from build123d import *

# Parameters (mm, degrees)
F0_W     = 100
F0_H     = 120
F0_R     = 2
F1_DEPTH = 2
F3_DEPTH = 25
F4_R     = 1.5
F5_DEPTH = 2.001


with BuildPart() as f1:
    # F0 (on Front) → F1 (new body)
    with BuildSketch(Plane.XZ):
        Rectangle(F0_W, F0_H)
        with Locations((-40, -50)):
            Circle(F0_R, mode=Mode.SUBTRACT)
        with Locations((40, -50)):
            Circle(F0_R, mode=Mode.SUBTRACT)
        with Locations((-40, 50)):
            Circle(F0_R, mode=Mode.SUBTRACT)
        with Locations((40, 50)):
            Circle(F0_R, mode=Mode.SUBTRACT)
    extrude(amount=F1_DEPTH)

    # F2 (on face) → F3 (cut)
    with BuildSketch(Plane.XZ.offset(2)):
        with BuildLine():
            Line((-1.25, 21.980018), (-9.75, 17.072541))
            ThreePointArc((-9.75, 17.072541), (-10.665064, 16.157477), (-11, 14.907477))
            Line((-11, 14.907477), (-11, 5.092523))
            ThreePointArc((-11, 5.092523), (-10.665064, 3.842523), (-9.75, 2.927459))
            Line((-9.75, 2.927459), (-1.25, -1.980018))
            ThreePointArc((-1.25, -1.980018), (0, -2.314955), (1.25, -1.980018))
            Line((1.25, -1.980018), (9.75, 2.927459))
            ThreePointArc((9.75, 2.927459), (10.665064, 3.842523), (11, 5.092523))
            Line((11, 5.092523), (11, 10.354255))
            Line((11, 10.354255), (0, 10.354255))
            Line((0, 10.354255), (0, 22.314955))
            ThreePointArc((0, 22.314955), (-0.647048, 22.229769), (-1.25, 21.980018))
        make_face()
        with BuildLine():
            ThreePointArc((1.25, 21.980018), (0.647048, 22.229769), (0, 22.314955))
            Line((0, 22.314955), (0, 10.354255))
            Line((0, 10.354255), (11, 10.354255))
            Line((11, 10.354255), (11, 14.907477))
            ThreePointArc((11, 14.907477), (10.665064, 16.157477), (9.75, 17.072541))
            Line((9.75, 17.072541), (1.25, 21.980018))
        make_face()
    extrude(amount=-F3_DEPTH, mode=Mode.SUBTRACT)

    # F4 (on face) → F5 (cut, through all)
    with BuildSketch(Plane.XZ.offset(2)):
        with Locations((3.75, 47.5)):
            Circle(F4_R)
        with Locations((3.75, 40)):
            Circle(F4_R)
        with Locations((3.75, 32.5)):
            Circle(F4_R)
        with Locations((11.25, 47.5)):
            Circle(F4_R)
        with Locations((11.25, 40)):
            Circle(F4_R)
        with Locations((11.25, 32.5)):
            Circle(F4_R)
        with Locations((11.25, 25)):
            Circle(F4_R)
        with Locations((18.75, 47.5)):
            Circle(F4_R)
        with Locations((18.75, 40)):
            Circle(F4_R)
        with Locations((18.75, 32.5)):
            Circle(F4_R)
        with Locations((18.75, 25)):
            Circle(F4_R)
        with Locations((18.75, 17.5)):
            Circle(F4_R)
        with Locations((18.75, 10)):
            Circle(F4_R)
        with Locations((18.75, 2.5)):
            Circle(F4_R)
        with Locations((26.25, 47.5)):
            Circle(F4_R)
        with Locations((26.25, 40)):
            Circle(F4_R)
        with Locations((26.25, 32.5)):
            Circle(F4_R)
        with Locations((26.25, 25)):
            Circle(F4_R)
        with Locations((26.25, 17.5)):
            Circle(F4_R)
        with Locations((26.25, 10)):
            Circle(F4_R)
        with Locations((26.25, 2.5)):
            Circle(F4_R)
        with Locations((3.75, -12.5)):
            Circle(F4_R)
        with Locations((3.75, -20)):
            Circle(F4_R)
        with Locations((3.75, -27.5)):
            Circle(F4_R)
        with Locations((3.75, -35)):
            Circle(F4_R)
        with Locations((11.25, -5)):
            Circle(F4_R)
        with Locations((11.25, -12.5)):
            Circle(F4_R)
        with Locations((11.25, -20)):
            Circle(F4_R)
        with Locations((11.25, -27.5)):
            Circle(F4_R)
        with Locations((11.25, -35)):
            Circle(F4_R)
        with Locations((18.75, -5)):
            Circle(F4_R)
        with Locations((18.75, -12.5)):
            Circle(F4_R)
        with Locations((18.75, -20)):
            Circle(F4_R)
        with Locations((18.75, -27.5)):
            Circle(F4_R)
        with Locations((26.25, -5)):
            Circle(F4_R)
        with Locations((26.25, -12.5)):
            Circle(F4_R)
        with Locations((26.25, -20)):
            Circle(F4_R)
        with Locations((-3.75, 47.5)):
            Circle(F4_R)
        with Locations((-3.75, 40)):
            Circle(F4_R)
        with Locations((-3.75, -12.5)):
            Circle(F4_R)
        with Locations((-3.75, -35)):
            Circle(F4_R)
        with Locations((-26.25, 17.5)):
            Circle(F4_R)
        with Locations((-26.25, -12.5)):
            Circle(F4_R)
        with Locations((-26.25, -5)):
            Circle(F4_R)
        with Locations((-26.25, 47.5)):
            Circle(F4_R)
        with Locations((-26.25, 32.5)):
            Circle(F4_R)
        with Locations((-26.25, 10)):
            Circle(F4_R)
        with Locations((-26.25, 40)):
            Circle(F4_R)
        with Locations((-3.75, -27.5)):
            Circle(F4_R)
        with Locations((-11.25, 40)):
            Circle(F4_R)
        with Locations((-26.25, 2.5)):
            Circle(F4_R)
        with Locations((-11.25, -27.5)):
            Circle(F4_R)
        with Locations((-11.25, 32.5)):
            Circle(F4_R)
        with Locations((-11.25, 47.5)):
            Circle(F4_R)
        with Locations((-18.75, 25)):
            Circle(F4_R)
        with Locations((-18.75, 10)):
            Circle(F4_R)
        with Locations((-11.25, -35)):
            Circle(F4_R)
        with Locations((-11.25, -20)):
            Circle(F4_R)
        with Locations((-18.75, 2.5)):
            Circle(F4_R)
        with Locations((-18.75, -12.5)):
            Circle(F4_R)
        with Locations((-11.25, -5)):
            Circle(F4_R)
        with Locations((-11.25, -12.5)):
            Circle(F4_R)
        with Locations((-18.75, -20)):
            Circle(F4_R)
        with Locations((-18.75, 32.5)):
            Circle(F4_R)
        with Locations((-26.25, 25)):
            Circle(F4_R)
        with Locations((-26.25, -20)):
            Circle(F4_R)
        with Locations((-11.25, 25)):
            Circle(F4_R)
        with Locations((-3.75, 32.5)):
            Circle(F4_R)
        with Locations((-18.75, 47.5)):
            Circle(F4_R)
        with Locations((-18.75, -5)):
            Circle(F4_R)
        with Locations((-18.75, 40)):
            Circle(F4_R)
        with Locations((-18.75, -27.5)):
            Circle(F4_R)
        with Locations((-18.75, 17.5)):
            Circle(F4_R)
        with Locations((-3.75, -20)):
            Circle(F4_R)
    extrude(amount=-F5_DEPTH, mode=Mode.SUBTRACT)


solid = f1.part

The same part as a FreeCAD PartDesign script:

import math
import FreeCAD as App
import Part
import Sketcher
Q = App.Units.Quantity


def add_polygon(sketch, points):
    """Adds a closed chain of lines whose ends are joined by coincident constraints."""
    first, n = sketch.GeometryCount, len(points)
    for a, b in zip(points, points[1:] + points[:1]):
        sketch.addGeometry(Part.LineSegment(App.Vector(*a, 0), App.Vector(*b, 0)), False)
    for i in range(n):
        sketch.addConstraint(Sketcher.Constraint("Coincident", first + i, 2, first + (i + 1) % n, 1))

doc = App.newDocument("Part")
body = doc.addObject("PartDesign::Body", "Body")

# Sketch on XZ plane
sketch1 = body.newObject("Sketcher::SketchObject", "Sketch")
sketch1.AttachmentSupport = (doc.getObject("XZ_Plane"), [""])
sketch1.MapMode = "FlatFace"
add_polygon(sketch1, [(-50, 60), (-50, -60), (50, -60), (50, 60)])  # lines 0-3
sketch1.addGeometry(Part.Circle(App.Vector(-40, -50, 0), App.Vector(0, 0, 1), 2), False)  # 4
sketch1.addGeometry(Part.Circle(App.Vector(40, -50, 0), App.Vector(0, 0, 1), 2), False)  # 5
sketch1.addGeometry(Part.Circle(App.Vector(-40, 50, 0), App.Vector(0, 0, 1), 2), False)  # 6
sketch1.addGeometry(Part.Circle(App.Vector(40, 50, 0), App.Vector(0, 0, 1), 2), False)  # 7
sketch1.addConstraint(Sketcher.Constraint("Vertical", 0))
sketch1.addConstraint(Sketcher.Constraint("Horizontal", 1))
sketch1.addConstraint(Sketcher.Constraint("Vertical", 2))
sketch1.addConstraint(Sketcher.Constraint("Horizontal", 3))
sketch1.addConstraint(Sketcher.Constraint("Equal", 4, 5))
sketch1.addConstraint(Sketcher.Constraint("Equal", 5, 6))
sketch1.addConstraint(Sketcher.Constraint("Equal", 6, 7))
sketch1.addConstraint(Sketcher.Constraint("Symmetric", 5, 3, 6, 3, -1, 1))
sketch1.addConstraint(Sketcher.Constraint("Symmetric", 4, 3, 7, 3, -1, 1))
sketch1.addConstraint(Sketcher.Constraint("Symmetric", 0, 2, 2, 2, -1, 1))
sketch1.addConstraint(Sketcher.Constraint("Symmetric", 4, 3, 5, 3, -2))
sketch1.addConstraint(Sketcher.Constraint("Diameter", 4, 4.0))
sketch1.addConstraint(Sketcher.Constraint("DistanceX", 1, 1, 1, 2, 100.0))
sketch1.addConstraint(Sketcher.Constraint("DistanceY", 0, 2, 0, 1, 120.0))
sketch1.addConstraint(Sketcher.Constraint("DistanceX", 4, 3, -1, 1, 40.0))
sketch1.addConstraint(Sketcher.Constraint("DistanceY", 4, 3, -1, 1, 50.0))
pad1 = body.newObject("PartDesign::Pad", "Pad")
pad1.Profile = sketch1
pad1.Length = 2

# Sketch on XZ plane
sketch2 = body.newObject("Sketcher::SketchObject", "Sketch001")
sketch2.AttachmentSupport = (doc.getObject("XZ_Plane"), [""])
sketch2.MapMode = "FlatFace"
sketch2.AttachmentOffset = App.Placement(App.Vector(0, 0, 2), App.Rotation())
sketch2.addGeometry(Part.LineSegment(App.Vector(-1.25, 21.980018, 0), App.Vector(-9.75, 17.072541, 0)), False)
sketch2.addGeometry(Part.ArcOfCircle(Part.Circle(App.Vector(-8.500001, 14.907478, 0), App.Vector(0, 0, 1), 2.499999), math.radians(119.999985), math.radians(180.000027)), False)
sketch2.addGeometry(Part.LineSegment(App.Vector(-11, 14.907477, 0), App.Vector(-11, 5.092523, 0)), False)
sketch2.addGeometry(Part.ArcOfCircle(Part.Circle(App.Vector(-8.500001, 5.092522, 0), App.Vector(0, 0, 1), 2.499999), math.radians(179.999973), math.radians(240.000015)), False)
sketch2.addGeometry(Part.LineSegment(App.Vector(-9.75, 2.927459, 0), App.Vector(-1.25, -1.980018, 0)), False)
sketch2.addGeometry(Part.ArcOfCircle(Part.Circle(App.Vector(0, 0.185042, 0), App.Vector(0, 0, 1), 2.499997), math.radians(-120.000044), math.radians(-59.999956)), False)
sketch2.addGeometry(Part.LineSegment(App.Vector(1.25, -1.980018, 0), App.Vector(9.75, 2.927459, 0)), False)
sketch2.addGeometry(Part.ArcOfCircle(Part.Circle(App.Vector(8.500001, 5.092522, 0), App.Vector(0, 0, 1), 2.499999), math.radians(-60.000015), math.radians(0.000027)), False)
sketch2.addGeometry(Part.LineSegment(App.Vector(11, 5.092523, 0), App.Vector(11, 14.907477, 0)), False)
sketch2.addGeometry(Part.ArcOfCircle(Part.Circle(App.Vector(8.500001, 14.907478, 0), App.Vector(0, 0, 1), 2.499999), math.radians(-0.000027), math.radians(60.000015)), False)
sketch2.addGeometry(Part.LineSegment(App.Vector(9.75, 17.072541, 0), App.Vector(1.25, 21.980018, 0)), False)
sketch2.addGeometry(Part.ArcOfCircle(Part.Circle(App.Vector(-0.000003, 19.814949, 0), App.Vector(0, 0, 1), 2.500006), math.radians(60.000015), math.radians(89.999942)), False)
sketch2.addGeometry(Part.ArcOfCircle(Part.Circle(App.Vector(0.000003, 19.814949, 0), App.Vector(0, 0, 1), 2.500006), math.radians(90.000058), math.radians(119.999985)), False)
sketch2.addConstraint(Sketcher.Constraint("Tangent", 0, 2, 1, 1))
sketch2.addConstraint(Sketcher.Constraint("Tangent", 1, 2, 2, 1))
sketch2.addConstraint(Sketcher.Constraint("Tangent", 2, 2, 3, 1))
sketch2.addConstraint(Sketcher.Constraint("Tangent", 3, 2, 4, 1))
sketch2.addConstraint(Sketcher.Constraint("Tangent", 4, 2, 5, 1))
sketch2.addConstraint(Sketcher.Constraint("Tangent", 5, 2, 6, 1))
sketch2.addConstraint(Sketcher.Constraint("Tangent", 6, 2, 7, 1))
sketch2.addConstraint(Sketcher.Constraint("Tangent", 7, 2, 8, 1))
sketch2.addConstraint(Sketcher.Constraint("Tangent", 8, 2, 9, 1))
sketch2.addConstraint(Sketcher.Constraint("Tangent", 9, 2, 10, 1))
sketch2.addConstraint(Sketcher.Constraint("Tangent", 10, 2, 11, 1))
sketch2.addConstraint(Sketcher.Constraint("Coincident", 11, 2, 12, 1))
sketch2.addConstraint(Sketcher.Constraint("Tangent", 12, 2, 0, 1))
sketch2.addConstraint(Sketcher.Constraint("Vertical", 2))
sketch2.addConstraint(Sketcher.Constraint("Vertical", 8))
sketch2.addConstraint(Sketcher.Constraint("Coincident", 12, 3, 11, 3))
sketch2.addConstraint(Sketcher.Constraint("Equal", 1, 3))
sketch2.addConstraint(Sketcher.Constraint("Equal", 3, 7))
sketch2.addConstraint(Sketcher.Constraint("Equal", 7, 9))
sketch2.addConstraint(Sketcher.Constraint("Symmetric", 3, 3, 7, 3, -2))
sketch2.addConstraint(Sketcher.Constraint("Symmetric", 0, 2, 9, 2, -2))
sketch2.addConstraint(Sketcher.Constraint("PointOnObject", 5, 3, -2))
sketch2.addConstraint(Sketcher.Constraint("PointOnObject", 11, 2, -2))
sketch2.addConstraint(Sketcher.Constraint("Parallel", 0, 6))
sketch2.addConstraint(Sketcher.Constraint("Vertical", 5, 2, 10, 2))
sketch2.addConstraint(Sketcher.Constraint("Radius", 1, 2.499999))
sketch2.addConstraint(Sketcher.Constraint("Angle", 0, Q("-150.000001 deg")))
sketch2.addConstraint(Sketcher.Constraint("DistanceX", 1, 2, -1, 1, 11.0))
sketch2.addConstraint(Sketcher.Constraint("DistanceX", 3, 2, 5, 2, 11.0))
sketch2.addConstraint(Sketcher.Constraint("DistanceY", 2, 2, 2, 1, 9.814954))
sketch2.addConstraint(Sketcher.Constraint("DistanceY", -1, 1, 1, 3, 14.907478))
pocket1 = body.newObject("PartDesign::Pocket", "Pocket")
pocket1.Profile = sketch2
pocket1.Length = 25

# Sketch on XZ plane
sketch3 = body.newObject("Sketcher::SketchObject", "Sketch002")
sketch3.AttachmentSupport = (doc.getObject("XZ_Plane"), [""])
sketch3.MapMode = "FlatFace"
sketch3.AttachmentOffset = App.Placement(App.Vector(0, 0, 2), App.Rotation())
sketch3.addGeometry(Part.Circle(App.Vector(3.75, 47.5, 0), App.Vector(0, 0, 1), 1.5), False)
sketch3.addGeometry(Part.Circle(App.Vector(3.75, 40, 0), App.Vector(0, 0, 1), 1.5), False)
sketch3.addGeometry(Part.Circle(App.Vector(3.75, 32.5, 0), App.Vector(0, 0, 1), 1.5), False)
sketch3.addGeometry(Part.Circle(App.Vector(11.25, 47.5, 0), App.Vector(0, 0, 1), 1.5), False)
sketch3.addGeometry(Part.Circle(App.Vector(11.25, 40, 0), App.Vector(0, 0, 1), 1.5), False)
sketch3.addGeometry(Part.Circle(App.Vector(11.25, 32.5, 0), App.Vector(0, 0, 1), 1.5), False)
sketch3.addGeometry(Part.Circle(App.Vector(11.25, 25, 0), App.Vector(0, 0, 1), 1.5), False)
sketch3.addGeometry(Part.Circle(App.Vector(18.75, 47.5, 0), App.Vector(0, 0, 1), 1.5), False)
sketch3.addGeometry(Part.Circle(App.Vector(18.75, 40, 0), App.Vector(0, 0, 1), 1.5), False)
sketch3.addGeometry(Part.Circle(App.Vector(18.75, 32.5, 0), App.Vector(0, 0, 1), 1.5), False)
sketch3.addGeometry(Part.Circle(App.Vector(18.75, 25, 0), App.Vector(0, 0, 1), 1.5), False)
sketch3.addGeometry(Part.Circle(App.Vector(18.75, 17.5, 0), App.Vector(0, 0, 1), 1.5), False)
sketch3.addGeometry(Part.Circle(App.Vector(18.75, 10, 0), App.Vector(0, 0, 1), 1.5), False)
sketch3.addGeometry(Part.Circle(App.Vector(18.75, 2.5, 0), App.Vector(0, 0, 1), 1.5), False)
sketch3.addGeometry(Part.Circle(App.Vector(26.25, 47.5, 0), App.Vector(0, 0, 1), 1.5), False)
sketch3.addGeometry(Part.Circle(App.Vector(26.25, 40, 0), App.Vector(0, 0, 1), 1.5), False)
sketch3.addGeometry(Part.Circle(App.Vector(26.25, 32.5, 0), App.Vector(0, 0, 1), 1.5), False)
sketch3.addGeometry(Part.Circle(App.Vector(26.25, 25, 0), App.Vector(0, 0, 1), 1.5), False)
sketch3.addGeometry(Part.Circle(App.Vector(26.25, 17.5, 0), App.Vector(0, 0, 1), 1.5), False)
sketch3.addGeometry(Part.Circle(App.Vector(26.25, 10, 0), App.Vector(0, 0, 1), 1.5), False)
sketch3.addGeometry(Part.Circle(App.Vector(26.25, 2.5, 0), App.Vector(0, 0, 1), 1.5), False)
sketch3.addGeometry(Part.Circle(App.Vector(3.75, -12.5, 0), App.Vector(0, 0, 1), 1.5), False)
sketch3.addGeometry(Part.Circle(App.Vector(3.75, -20, 0), App.Vector(0, 0, 1), 1.5), False)
sketch3.addGeometry(Part.Circle(App.Vector(3.75, -27.5, 0), App.Vector(0, 0, 1), 1.5), False)
sketch3.addGeometry(Part.Circle(App.Vector(3.75, -35, 0), App.Vector(0, 0, 1), 1.5), False)
sketch3.addGeometry(Part.Circle(App.Vector(11.25, -5, 0), App.Vector(0, 0, 1), 1.5), False)
sketch3.addGeometry(Part.Circle(App.Vector(11.25, -12.5, 0), App.Vector(0, 0, 1), 1.5), False)
sketch3.addGeometry(Part.Circle(App.Vector(11.25, -20, 0), App.Vector(0, 0, 1), 1.5), False)
sketch3.addGeometry(Part.Circle(App.Vector(11.25, -27.5, 0), App.Vector(0, 0, 1), 1.5), False)
sketch3.addGeometry(Part.Circle(App.Vector(11.25, -35, 0), App.Vector(0, 0, 1), 1.5), False)
sketch3.addGeometry(Part.Circle(App.Vector(18.75, -5, 0), App.Vector(0, 0, 1), 1.5), False)
sketch3.addGeometry(Part.Circle(App.Vector(18.75, -12.5, 0), App.Vector(0, 0, 1), 1.5), False)
sketch3.addGeometry(Part.Circle(App.Vector(18.75, -20, 0), App.Vector(0, 0, 1), 1.5), False)
sketch3.addGeometry(Part.Circle(App.Vector(18.75, -27.5, 0), App.Vector(0, 0, 1), 1.5), False)
sketch3.addGeometry(Part.Circle(App.Vector(26.25, -5, 0), App.Vector(0, 0, 1), 1.5), False)
sketch3.addGeometry(Part.Circle(App.Vector(26.25, -12.5, 0), App.Vector(0, 0, 1), 1.5), False)
sketch3.addGeometry(Part.Circle(App.Vector(26.25, -20, 0), App.Vector(0, 0, 1), 1.5), False)
sketch3.addGeometry(Part.Circle(App.Vector(-3.75, 47.5, 0), App.Vector(0, 0, 1), 1.5), False)
sketch3.addGeometry(Part.Circle(App.Vector(-3.75, 40, 0), App.Vector(0, 0, 1), 1.5), False)
sketch3.addGeometry(Part.Circle(App.Vector(-3.75, -12.5, 0), App.Vector(0, 0, 1), 1.5), False)
sketch3.addGeometry(Part.Circle(App.Vector(-3.75, -35, 0), App.Vector(0, 0, 1), 1.5), False)
sketch3.addGeometry(Part.Circle(App.Vector(-26.25, 17.5, 0), App.Vector(0, 0, 1), 1.5), False)
sketch3.addGeometry(Part.Circle(App.Vector(-26.25, -12.5, 0), App.Vector(0, 0, 1), 1.5), False)
sketch3.addGeometry(Part.Circle(App.Vector(-26.25, -5, 0), App.Vector(0, 0, 1), 1.5), False)
sketch3.addGeometry(Part.Circle(App.Vector(-26.25, 47.5, 0), App.Vector(0, 0, 1), 1.5), False)
sketch3.addGeometry(Part.Circle(App.Vector(-26.25, 32.5, 0), App.Vector(0, 0, 1), 1.5), False)
sketch3.addGeometry(Part.Circle(App.Vector(-26.25, 10, 0), App.Vector(0, 0, 1), 1.5), False)
sketch3.addGeometry(Part.Circle(App.Vector(-26.25, 40, 0), App.Vector(0, 0, 1), 1.5), False)
sketch3.addGeometry(Part.Circle(App.Vector(-3.75, -27.5, 0), App.Vector(0, 0, 1), 1.5), False)
sketch3.addGeometry(Part.Circle(App.Vector(-11.25, 40, 0), App.Vector(0, 0, 1), 1.5), False)
sketch3.addGeometry(Part.Circle(App.Vector(-26.25, 2.5, 0), App.Vector(0, 0, 1), 1.5), False)
sketch3.addGeometry(Part.Circle(App.Vector(-11.25, -27.5, 0), App.Vector(0, 0, 1), 1.5), False)
sketch3.addGeometry(Part.Circle(App.Vector(-11.25, 32.5, 0), App.Vector(0, 0, 1), 1.5), False)
sketch3.addGeometry(Part.Circle(App.Vector(-11.25, 47.5, 0), App.Vector(0, 0, 1), 1.5), False)
sketch3.addGeometry(Part.Circle(App.Vector(-18.75, 25, 0), App.Vector(0, 0, 1), 1.5), False)
sketch3.addGeometry(Part.Circle(App.Vector(-18.75, 10, 0), App.Vector(0, 0, 1), 1.5), False)
sketch3.addGeometry(Part.Circle(App.Vector(-11.25, -35, 0), App.Vector(0, 0, 1), 1.5), False)
sketch3.addGeometry(Part.Circle(App.Vector(-11.25, -20, 0), App.Vector(0, 0, 1), 1.5), False)
sketch3.addGeometry(Part.Circle(App.Vector(-18.75, 2.5, 0), App.Vector(0, 0, 1), 1.5), False)
sketch3.addGeometry(Part.Circle(App.Vector(-18.75, -12.5, 0), App.Vector(0, 0, 1), 1.5), False)
sketch3.addGeometry(Part.Circle(App.Vector(-11.25, -5, 0), App.Vector(0, 0, 1), 1.5), False)
sketch3.addGeometry(Part.Circle(App.Vector(-11.25, -12.5, 0), App.Vector(0, 0, 1), 1.5), False)
sketch3.addGeometry(Part.Circle(App.Vector(-18.75, -20, 0), App.Vector(0, 0, 1), 1.5), False)
sketch3.addGeometry(Part.Circle(App.Vector(-18.75, 32.5, 0), App.Vector(0, 0, 1), 1.5), False)
sketch3.addGeometry(Part.Circle(App.Vector(-26.25, 25, 0), App.Vector(0, 0, 1), 1.5), False)
sketch3.addGeometry(Part.Circle(App.Vector(-26.25, -20, 0), App.Vector(0, 0, 1), 1.5), False)
sketch3.addGeometry(Part.Circle(App.Vector(-11.25, 25, 0), App.Vector(0, 0, 1), 1.5), False)
sketch3.addGeometry(Part.Circle(App.Vector(-3.75, 32.5, 0), App.Vector(0, 0, 1), 1.5), False)
sketch3.addGeometry(Part.Circle(App.Vector(-18.75, 47.5, 0), App.Vector(0, 0, 1), 1.5), False)
sketch3.addGeometry(Part.Circle(App.Vector(-18.75, -5, 0), App.Vector(0, 0, 1), 1.5), False)
sketch3.addGeometry(Part.Circle(App.Vector(-18.75, 40, 0), App.Vector(0, 0, 1), 1.5), False)
sketch3.addGeometry(Part.Circle(App.Vector(-18.75, -27.5, 0), App.Vector(0, 0, 1), 1.5), False)
sketch3.addGeometry(Part.Circle(App.Vector(-18.75, 17.5, 0), App.Vector(0, 0, 1), 1.5), False)
sketch3.addGeometry(Part.Circle(App.Vector(-3.75, -20, 0), App.Vector(0, 0, 1), 1.5), False)
sketch3.addConstraint(Sketcher.Constraint("Equal", 0, 1))
sketch3.addConstraint(Sketcher.Constraint("Equal", 1, 2))
sketch3.addConstraint(Sketcher.Constraint("Equal", 2, 3))
sketch3.addConstraint(Sketcher.Constraint("Equal", 3, 4))
sketch3.addConstraint(Sketcher.Constraint("Equal", 4, 5))
sketch3.addConstraint(Sketcher.Constraint("Equal", 5, 6))
sketch3.addConstraint(Sketcher.Constraint("Equal", 6, 7))
sketch3.addConstraint(Sketcher.Constraint("Equal", 7, 8))
sketch3.addConstraint(Sketcher.Constraint("Equal", 8, 9))
sketch3.addConstraint(Sketcher.Constraint("Equal", 9, 10))
sketch3.addConstraint(Sketcher.Constraint("Equal", 10, 11))
sketch3.addConstraint(Sketcher.Constraint("Equal", 11, 12))
sketch3.addConstraint(Sketcher.Constraint("Equal", 12, 13))
sketch3.addConstraint(Sketcher.Constraint("Equal", 13, 14))
sketch3.addConstraint(Sketcher.Constraint("Equal", 14, 15))
sketch3.addConstraint(Sketcher.Constraint("Equal", 15, 16))
sketch3.addConstraint(Sketcher.Constraint("Equal", 16, 17))
sketch3.addConstraint(Sketcher.Constraint("Equal", 17, 18))
sketch3.addConstraint(Sketcher.Constraint("Equal", 18, 19))
sketch3.addConstraint(Sketcher.Constraint("Equal", 19, 20))
sketch3.addConstraint(Sketcher.Constraint("Equal", 20, 21))
sketch3.addConstraint(Sketcher.Constraint("Equal", 21, 22))
sketch3.addConstraint(Sketcher.Constraint("Equal", 22, 23))
sketch3.addConstraint(Sketcher.Constraint("Equal", 23, 24))
sketch3.addConstraint(Sketcher.Constraint("Equal", 24, 25))
sketch3.addConstraint(Sketcher.Constraint("Equal", 25, 26))
sketch3.addConstraint(Sketcher.Constraint("Equal", 26, 27))
sketch3.addConstraint(Sketcher.Constraint("Equal", 27, 28))
sketch3.addConstraint(Sketcher.Constraint("Equal", 28, 29))
sketch3.addConstraint(Sketcher.Constraint("Equal", 29, 30))
sketch3.addConstraint(Sketcher.Constraint("Equal", 30, 31))
sketch3.addConstraint(Sketcher.Constraint("Equal", 31, 32))
sketch3.addConstraint(Sketcher.Constraint("Equal", 32, 33))
sketch3.addConstraint(Sketcher.Constraint("Equal", 33, 34))
sketch3.addConstraint(Sketcher.Constraint("Equal", 34, 35))
sketch3.addConstraint(Sketcher.Constraint("Equal", 35, 36))
sketch3.addConstraint(Sketcher.Constraint("Equal", 36, 37))
sketch3.addConstraint(Sketcher.Constraint("Equal", 37, 38))
sketch3.addConstraint(Sketcher.Constraint("Equal", 38, 39))
sketch3.addConstraint(Sketcher.Constraint("Equal", 39, 40))
sketch3.addConstraint(Sketcher.Constraint("Equal", 40, 41))
sketch3.addConstraint(Sketcher.Constraint("Equal", 41, 42))
sketch3.addConstraint(Sketcher.Constraint("Equal", 42, 43))
sketch3.addConstraint(Sketcher.Constraint("Equal", 43, 44))
sketch3.addConstraint(Sketcher.Constraint("Equal", 44, 45))
sketch3.addConstraint(Sketcher.Constraint("Equal", 45, 46))
sketch3.addConstraint(Sketcher.Constraint("Equal", 46, 47))
sketch3.addConstraint(Sketcher.Constraint("Equal", 47, 48))
sketch3.addConstraint(Sketcher.Constraint("Equal", 48, 49))
sketch3.addConstraint(Sketcher.Constraint("Equal", 49, 50))
sketch3.addConstraint(Sketcher.Constraint("Equal", 50, 51))
sketch3.addConstraint(Sketcher.Constraint("Equal", 51, 52))
sketch3.addConstraint(Sketcher.Constraint("Equal", 52, 53))
sketch3.addConstraint(Sketcher.Constraint("Equal", 53, 54))
sketch3.addConstraint(Sketcher.Constraint("Equal", 54, 55))
sketch3.addConstraint(Sketcher.Constraint("Equal", 55, 56))
sketch3.addConstraint(Sketcher.Constraint("Equal", 56, 57))
sketch3.addConstraint(Sketcher.Constraint("Equal", 57, 58))
sketch3.addConstraint(Sketcher.Constraint("Equal", 58, 59))
sketch3.addConstraint(Sketcher.Constraint("Equal", 59, 60))
sketch3.addConstraint(Sketcher.Constraint("Equal", 60, 61))
sketch3.addConstraint(Sketcher.Constraint("Equal", 61, 62))
sketch3.addConstraint(Sketcher.Constraint("Equal", 62, 63))
sketch3.addConstraint(Sketcher.Constraint("Equal", 63, 64))
sketch3.addConstraint(Sketcher.Constraint("Equal", 64, 65))
sketch3.addConstraint(Sketcher.Constraint("Equal", 65, 66))
sketch3.addConstraint(Sketcher.Constraint("Equal", 66, 67))
sketch3.addConstraint(Sketcher.Constraint("Equal", 67, 68))
sketch3.addConstraint(Sketcher.Constraint("Equal", 68, 69))
sketch3.addConstraint(Sketcher.Constraint("Equal", 69, 70))
sketch3.addConstraint(Sketcher.Constraint("Equal", 70, 71))
sketch3.addConstraint(Sketcher.Constraint("Equal", 71, 72))
sketch3.addConstraint(Sketcher.Constraint("Equal", 72, 73))
sketch3.addConstraint(Sketcher.Constraint("Symmetric", 0, 3, 37, 3, -2))
sketch3.addConstraint(Sketcher.Constraint("Symmetric", 1, 3, 38, 3, -2))
sketch3.addConstraint(Sketcher.Constraint("Symmetric", 21, 3, 39, 3, -2))
sketch3.addConstraint(Sketcher.Constraint("Symmetric", 24, 3, 40, 3, -2))
sketch3.addConstraint(Sketcher.Constraint("Symmetric", 18, 3, 41, 3, -2))
sketch3.addConstraint(Sketcher.Constraint("Symmetric", 35, 3, 42, 3, -2))
sketch3.addConstraint(Sketcher.Constraint("Symmetric", 34, 3, 43, 3, -2))
sketch3.addConstraint(Sketcher.Constraint("Symmetric", 14, 3, 44, 3, -2))
sketch3.addConstraint(Sketcher.Constraint("Symmetric", 16, 3, 45, 3, -2))
sketch3.addConstraint(Sketcher.Constraint("Symmetric", 19, 3, 46, 3, -2))
sketch3.addConstraint(Sketcher.Constraint("Symmetric", 15, 3, 47, 3, -2))
sketch3.addConstraint(Sketcher.Constraint("Symmetric", 23, 3, 48, 3, -2))
sketch3.addConstraint(Sketcher.Constraint("Symmetric", 4, 3, 49, 3, -2))
sketch3.addConstraint(Sketcher.Constraint("Symmetric", 20, 3, 50, 3, -2))
sketch3.addConstraint(Sketcher.Constraint("Symmetric", 28, 3, 51, 3, -2))
sketch3.addConstraint(Sketcher.Constraint("Symmetric", 5, 3, 52, 3, -2))
sketch3.addConstraint(Sketcher.Constraint("Symmetric", 3, 3, 53, 3, -2))
sketch3.addConstraint(Sketcher.Constraint("Symmetric", 10, 3, 54, 3, -2))
sketch3.addConstraint(Sketcher.Constraint("Symmetric", 12, 3, 55, 3, -2))
sketch3.addConstraint(Sketcher.Constraint("Symmetric", 29, 3, 56, 3, -2))
sketch3.addConstraint(Sketcher.Constraint("Symmetric", 27, 3, 57, 3, -2))
sketch3.addConstraint(Sketcher.Constraint("Symmetric", 13, 3, 58, 3, -2))
sketch3.addConstraint(Sketcher.Constraint("Symmetric", 31, 3, 59, 3, -2))
sketch3.addConstraint(Sketcher.Constraint("Symmetric", 25, 3, 60, 3, -2))
sketch3.addConstraint(Sketcher.Constraint("Symmetric", 26, 3, 61, 3, -2))
sketch3.addConstraint(Sketcher.Constraint("Symmetric", 32, 3, 62, 3, -2))
sketch3.addConstraint(Sketcher.Constraint("Symmetric", 9, 3, 63, 3, -2))
sketch3.addConstraint(Sketcher.Constraint("Symmetric", 17, 3, 64, 3, -2))
sketch3.addConstraint(Sketcher.Constraint("Symmetric", 36, 3, 65, 3, -2))
sketch3.addConstraint(Sketcher.Constraint("Symmetric", 6, 3, 66, 3, -2))
sketch3.addConstraint(Sketcher.Constraint("Symmetric", 2, 3, 67, 3, -2))
sketch3.addConstraint(Sketcher.Constraint("Symmetric", 7, 3, 68, 3, -2))
sketch3.addConstraint(Sketcher.Constraint("Symmetric", 30, 3, 69, 3, -2))
sketch3.addConstraint(Sketcher.Constraint("Symmetric", 8, 3, 70, 3, -2))
sketch3.addConstraint(Sketcher.Constraint("Symmetric", 33, 3, 71, 3, -2))
sketch3.addConstraint(Sketcher.Constraint("Symmetric", 11, 3, 72, 3, -2))
sketch3.addConstraint(Sketcher.Constraint("Symmetric", 22, 3, 73, 3, -2))
sketch3.addConstraint(Sketcher.Constraint("Horizontal", 0, 3, 3, 3))
sketch3.addConstraint(Sketcher.Constraint("Horizontal", 1, 3, 4, 3))
sketch3.addConstraint(Sketcher.Constraint("Horizontal", 2, 3, 5, 3))
sketch3.addConstraint(Sketcher.Constraint("Horizontal", 3, 3, 7, 3))
sketch3.addConstraint(Sketcher.Constraint("Horizontal", 4, 3, 8, 3))
sketch3.addConstraint(Sketcher.Constraint("Horizontal", 5, 3, 9, 3))
sketch3.addConstraint(Sketcher.Constraint("Horizontal", 6, 3, 10, 3))
sketch3.addConstraint(Sketcher.Constraint("Horizontal", 7, 3, 14, 3))
sketch3.addConstraint(Sketcher.Constraint("Horizontal", 8, 3, 15, 3))
sketch3.addConstraint(Sketcher.Constraint("Horizontal", 9, 3, 16, 3))
sketch3.addConstraint(Sketcher.Constraint("Horizontal", 10, 3, 17, 3))
sketch3.addConstraint(Sketcher.Constraint("Horizontal", 11, 3, 18, 3))
sketch3.addConstraint(Sketcher.Constraint("Horizontal", 12, 3, 19, 3))
sketch3.addConstraint(Sketcher.Constraint("Horizontal", 13, 3, 20, 3))
sketch3.addConstraint(Sketcher.Constraint("Horizontal", 21, 3, 26, 3))
sketch3.addConstraint(Sketcher.Constraint("Horizontal", 22, 3, 27, 3))
sketch3.addConstraint(Sketcher.Constraint("Horizontal", 23, 3, 28, 3))
sketch3.addConstraint(Sketcher.Constraint("Horizontal", 24, 3, 29, 3))
sketch3.addConstraint(Sketcher.Constraint("Horizontal", 25, 3, 30, 3))
sketch3.addConstraint(Sketcher.Constraint("Horizontal", 26, 3, 31, 3))
sketch3.addConstraint(Sketcher.Constraint("Horizontal", 27, 3, 32, 3))
sketch3.addConstraint(Sketcher.Constraint("Horizontal", 28, 3, 33, 3))
sketch3.addConstraint(Sketcher.Constraint("Horizontal", 30, 3, 34, 3))
sketch3.addConstraint(Sketcher.Constraint("Horizontal", 31, 3, 35, 3))
sketch3.addConstraint(Sketcher.Constraint("Horizontal", 32, 3, 36, 3))
sketch3.addConstraint(Sketcher.Constraint("Vertical", 0, 3, 1, 3))
sketch3.addConstraint(Sketcher.Constraint("Vertical", 1, 3, 2, 3))
sketch3.addConstraint(Sketcher.Constraint("Vertical", 3, 3, 4, 3))
sketch3.addConstraint(Sketcher.Constraint("Vertical", 4, 3, 5, 3))
sketch3.addConstraint(Sketcher.Constraint("Vertical", 5, 3, 6, 3))
sketch3.addConstraint(Sketcher.Constraint("Vertical", 7, 3, 8, 3))
sketch3.addConstraint(Sketcher.Constraint("Vertical", 8, 3, 9, 3))
sketch3.addConstraint(Sketcher.Constraint("Vertical", 9, 3, 10, 3))
sketch3.addConstraint(Sketcher.Constraint("Vertical", 10, 3, 11, 3))
sketch3.addConstraint(Sketcher.Constraint("Vertical", 11, 3, 12, 3))
sketch3.addConstraint(Sketcher.Constraint("Vertical", 12, 3, 13, 3))
sketch3.addConstraint(Sketcher.Constraint("Vertical", 14, 3, 15, 3))
sketch3.addConstraint(Sketcher.Constraint("Vertical", 15, 3, 16, 3))
sketch3.addConstraint(Sketcher.Constraint("Vertical", 16, 3, 17, 3))
sketch3.addConstraint(Sketcher.Constraint("Vertical", 17, 3, 18, 3))
sketch3.addConstraint(Sketcher.Constraint("Vertical", 18, 3, 19, 3))
sketch3.addConstraint(Sketcher.Constraint("Vertical", 19, 3, 20, 3))
sketch3.addConstraint(Sketcher.Constraint("Vertical", 2, 3, 21, 3))
sketch3.addConstraint(Sketcher.Constraint("Vertical", 21, 3, 22, 3))
sketch3.addConstraint(Sketcher.Constraint("Vertical", 22, 3, 23, 3))
sketch3.addConstraint(Sketcher.Constraint("Vertical", 23, 3, 24, 3))
sketch3.addConstraint(Sketcher.Constraint("Vertical", 6, 3, 25, 3))
sketch3.addConstraint(Sketcher.Constraint("Vertical", 25, 3, 26, 3))
sketch3.addConstraint(Sketcher.Constraint("Vertical", 26, 3, 27, 3))
sketch3.addConstraint(Sketcher.Constraint("Vertical", 27, 3, 28, 3))
sketch3.addConstraint(Sketcher.Constraint("Vertical", 28, 3, 29, 3))
sketch3.addConstraint(Sketcher.Constraint("Vertical", 13, 3, 30, 3))
sketch3.addConstraint(Sketcher.Constraint("Vertical", 30, 3, 31, 3))
sketch3.addConstraint(Sketcher.Constraint("Vertical", 31, 3, 32, 3))
sketch3.addConstraint(Sketcher.Constraint("Vertical", 32, 3, 33, 3))
sketch3.addConstraint(Sketcher.Constraint("Vertical", 20, 3, 34, 3))
sketch3.addConstraint(Sketcher.Constraint("Vertical", 34, 3, 35, 3))
sketch3.addConstraint(Sketcher.Constraint("Vertical", 35, 3, 36, 3))
sketch3.addConstraint(Sketcher.Constraint("Diameter", 0, 3.0))
sketch3.addConstraint(Sketcher.Constraint("DistanceY", -1, 1, 1, 3, 40.0))
sketch3.addConstraint(Sketcher.Constraint("DistanceY", -1, 1, 6, 3, 25.0))
sketch3.addConstraint(Sketcher.Constraint("DistanceY", -1, 1, 12, 3, 10.0))
sketch3.addConstraint(Sketcher.Constraint("DistanceY", 22, 3, -1, 1, 20.0))
sketch3.addConstraint(Sketcher.Constraint("DistanceY", 24, 3, -1, 1, 35.0))
sketch3.addConstraint(Sketcher.Constraint("DistanceY", 25, 3, -1, 1, 5.0))
sketch3.addConstraint(Sketcher.Constraint("DistanceY", -1, 1, 0, 3, 47.5))
sketch3.addConstraint(Sketcher.Constraint("DistanceY", -1, 1, 2, 3, 32.5))
sketch3.addConstraint(Sketcher.Constraint("DistanceY", -1, 1, 11, 3, 17.5))
sketch3.addConstraint(Sketcher.Constraint("DistanceY", -1, 1, 13, 3, 2.5))
sketch3.addConstraint(Sketcher.Constraint("DistanceY", 21, 3, -1, 1, 12.5))
sketch3.addConstraint(Sketcher.Constraint("DistanceY", 23, 3, -1, 1, 27.5))
sketch3.addConstraint(Sketcher.Constraint("DistanceX", -1, 1, 0, 3, 3.75))
sketch3.addConstraint(Sketcher.Constraint("DistanceX", -1, 1, 3, 3, 11.25))
sketch3.addConstraint(Sketcher.Constraint("DistanceX", -1, 1, 7, 3, 18.75))
sketch3.addConstraint(Sketcher.Constraint("DistanceX", -1, 1, 14, 3, 26.25))
pocket2 = body.newObject("PartDesign::Pocket", "Pocket001")
pocket2.Profile = sketch3
pocket2.Type = "ThroughAll"

doc.recompute()
